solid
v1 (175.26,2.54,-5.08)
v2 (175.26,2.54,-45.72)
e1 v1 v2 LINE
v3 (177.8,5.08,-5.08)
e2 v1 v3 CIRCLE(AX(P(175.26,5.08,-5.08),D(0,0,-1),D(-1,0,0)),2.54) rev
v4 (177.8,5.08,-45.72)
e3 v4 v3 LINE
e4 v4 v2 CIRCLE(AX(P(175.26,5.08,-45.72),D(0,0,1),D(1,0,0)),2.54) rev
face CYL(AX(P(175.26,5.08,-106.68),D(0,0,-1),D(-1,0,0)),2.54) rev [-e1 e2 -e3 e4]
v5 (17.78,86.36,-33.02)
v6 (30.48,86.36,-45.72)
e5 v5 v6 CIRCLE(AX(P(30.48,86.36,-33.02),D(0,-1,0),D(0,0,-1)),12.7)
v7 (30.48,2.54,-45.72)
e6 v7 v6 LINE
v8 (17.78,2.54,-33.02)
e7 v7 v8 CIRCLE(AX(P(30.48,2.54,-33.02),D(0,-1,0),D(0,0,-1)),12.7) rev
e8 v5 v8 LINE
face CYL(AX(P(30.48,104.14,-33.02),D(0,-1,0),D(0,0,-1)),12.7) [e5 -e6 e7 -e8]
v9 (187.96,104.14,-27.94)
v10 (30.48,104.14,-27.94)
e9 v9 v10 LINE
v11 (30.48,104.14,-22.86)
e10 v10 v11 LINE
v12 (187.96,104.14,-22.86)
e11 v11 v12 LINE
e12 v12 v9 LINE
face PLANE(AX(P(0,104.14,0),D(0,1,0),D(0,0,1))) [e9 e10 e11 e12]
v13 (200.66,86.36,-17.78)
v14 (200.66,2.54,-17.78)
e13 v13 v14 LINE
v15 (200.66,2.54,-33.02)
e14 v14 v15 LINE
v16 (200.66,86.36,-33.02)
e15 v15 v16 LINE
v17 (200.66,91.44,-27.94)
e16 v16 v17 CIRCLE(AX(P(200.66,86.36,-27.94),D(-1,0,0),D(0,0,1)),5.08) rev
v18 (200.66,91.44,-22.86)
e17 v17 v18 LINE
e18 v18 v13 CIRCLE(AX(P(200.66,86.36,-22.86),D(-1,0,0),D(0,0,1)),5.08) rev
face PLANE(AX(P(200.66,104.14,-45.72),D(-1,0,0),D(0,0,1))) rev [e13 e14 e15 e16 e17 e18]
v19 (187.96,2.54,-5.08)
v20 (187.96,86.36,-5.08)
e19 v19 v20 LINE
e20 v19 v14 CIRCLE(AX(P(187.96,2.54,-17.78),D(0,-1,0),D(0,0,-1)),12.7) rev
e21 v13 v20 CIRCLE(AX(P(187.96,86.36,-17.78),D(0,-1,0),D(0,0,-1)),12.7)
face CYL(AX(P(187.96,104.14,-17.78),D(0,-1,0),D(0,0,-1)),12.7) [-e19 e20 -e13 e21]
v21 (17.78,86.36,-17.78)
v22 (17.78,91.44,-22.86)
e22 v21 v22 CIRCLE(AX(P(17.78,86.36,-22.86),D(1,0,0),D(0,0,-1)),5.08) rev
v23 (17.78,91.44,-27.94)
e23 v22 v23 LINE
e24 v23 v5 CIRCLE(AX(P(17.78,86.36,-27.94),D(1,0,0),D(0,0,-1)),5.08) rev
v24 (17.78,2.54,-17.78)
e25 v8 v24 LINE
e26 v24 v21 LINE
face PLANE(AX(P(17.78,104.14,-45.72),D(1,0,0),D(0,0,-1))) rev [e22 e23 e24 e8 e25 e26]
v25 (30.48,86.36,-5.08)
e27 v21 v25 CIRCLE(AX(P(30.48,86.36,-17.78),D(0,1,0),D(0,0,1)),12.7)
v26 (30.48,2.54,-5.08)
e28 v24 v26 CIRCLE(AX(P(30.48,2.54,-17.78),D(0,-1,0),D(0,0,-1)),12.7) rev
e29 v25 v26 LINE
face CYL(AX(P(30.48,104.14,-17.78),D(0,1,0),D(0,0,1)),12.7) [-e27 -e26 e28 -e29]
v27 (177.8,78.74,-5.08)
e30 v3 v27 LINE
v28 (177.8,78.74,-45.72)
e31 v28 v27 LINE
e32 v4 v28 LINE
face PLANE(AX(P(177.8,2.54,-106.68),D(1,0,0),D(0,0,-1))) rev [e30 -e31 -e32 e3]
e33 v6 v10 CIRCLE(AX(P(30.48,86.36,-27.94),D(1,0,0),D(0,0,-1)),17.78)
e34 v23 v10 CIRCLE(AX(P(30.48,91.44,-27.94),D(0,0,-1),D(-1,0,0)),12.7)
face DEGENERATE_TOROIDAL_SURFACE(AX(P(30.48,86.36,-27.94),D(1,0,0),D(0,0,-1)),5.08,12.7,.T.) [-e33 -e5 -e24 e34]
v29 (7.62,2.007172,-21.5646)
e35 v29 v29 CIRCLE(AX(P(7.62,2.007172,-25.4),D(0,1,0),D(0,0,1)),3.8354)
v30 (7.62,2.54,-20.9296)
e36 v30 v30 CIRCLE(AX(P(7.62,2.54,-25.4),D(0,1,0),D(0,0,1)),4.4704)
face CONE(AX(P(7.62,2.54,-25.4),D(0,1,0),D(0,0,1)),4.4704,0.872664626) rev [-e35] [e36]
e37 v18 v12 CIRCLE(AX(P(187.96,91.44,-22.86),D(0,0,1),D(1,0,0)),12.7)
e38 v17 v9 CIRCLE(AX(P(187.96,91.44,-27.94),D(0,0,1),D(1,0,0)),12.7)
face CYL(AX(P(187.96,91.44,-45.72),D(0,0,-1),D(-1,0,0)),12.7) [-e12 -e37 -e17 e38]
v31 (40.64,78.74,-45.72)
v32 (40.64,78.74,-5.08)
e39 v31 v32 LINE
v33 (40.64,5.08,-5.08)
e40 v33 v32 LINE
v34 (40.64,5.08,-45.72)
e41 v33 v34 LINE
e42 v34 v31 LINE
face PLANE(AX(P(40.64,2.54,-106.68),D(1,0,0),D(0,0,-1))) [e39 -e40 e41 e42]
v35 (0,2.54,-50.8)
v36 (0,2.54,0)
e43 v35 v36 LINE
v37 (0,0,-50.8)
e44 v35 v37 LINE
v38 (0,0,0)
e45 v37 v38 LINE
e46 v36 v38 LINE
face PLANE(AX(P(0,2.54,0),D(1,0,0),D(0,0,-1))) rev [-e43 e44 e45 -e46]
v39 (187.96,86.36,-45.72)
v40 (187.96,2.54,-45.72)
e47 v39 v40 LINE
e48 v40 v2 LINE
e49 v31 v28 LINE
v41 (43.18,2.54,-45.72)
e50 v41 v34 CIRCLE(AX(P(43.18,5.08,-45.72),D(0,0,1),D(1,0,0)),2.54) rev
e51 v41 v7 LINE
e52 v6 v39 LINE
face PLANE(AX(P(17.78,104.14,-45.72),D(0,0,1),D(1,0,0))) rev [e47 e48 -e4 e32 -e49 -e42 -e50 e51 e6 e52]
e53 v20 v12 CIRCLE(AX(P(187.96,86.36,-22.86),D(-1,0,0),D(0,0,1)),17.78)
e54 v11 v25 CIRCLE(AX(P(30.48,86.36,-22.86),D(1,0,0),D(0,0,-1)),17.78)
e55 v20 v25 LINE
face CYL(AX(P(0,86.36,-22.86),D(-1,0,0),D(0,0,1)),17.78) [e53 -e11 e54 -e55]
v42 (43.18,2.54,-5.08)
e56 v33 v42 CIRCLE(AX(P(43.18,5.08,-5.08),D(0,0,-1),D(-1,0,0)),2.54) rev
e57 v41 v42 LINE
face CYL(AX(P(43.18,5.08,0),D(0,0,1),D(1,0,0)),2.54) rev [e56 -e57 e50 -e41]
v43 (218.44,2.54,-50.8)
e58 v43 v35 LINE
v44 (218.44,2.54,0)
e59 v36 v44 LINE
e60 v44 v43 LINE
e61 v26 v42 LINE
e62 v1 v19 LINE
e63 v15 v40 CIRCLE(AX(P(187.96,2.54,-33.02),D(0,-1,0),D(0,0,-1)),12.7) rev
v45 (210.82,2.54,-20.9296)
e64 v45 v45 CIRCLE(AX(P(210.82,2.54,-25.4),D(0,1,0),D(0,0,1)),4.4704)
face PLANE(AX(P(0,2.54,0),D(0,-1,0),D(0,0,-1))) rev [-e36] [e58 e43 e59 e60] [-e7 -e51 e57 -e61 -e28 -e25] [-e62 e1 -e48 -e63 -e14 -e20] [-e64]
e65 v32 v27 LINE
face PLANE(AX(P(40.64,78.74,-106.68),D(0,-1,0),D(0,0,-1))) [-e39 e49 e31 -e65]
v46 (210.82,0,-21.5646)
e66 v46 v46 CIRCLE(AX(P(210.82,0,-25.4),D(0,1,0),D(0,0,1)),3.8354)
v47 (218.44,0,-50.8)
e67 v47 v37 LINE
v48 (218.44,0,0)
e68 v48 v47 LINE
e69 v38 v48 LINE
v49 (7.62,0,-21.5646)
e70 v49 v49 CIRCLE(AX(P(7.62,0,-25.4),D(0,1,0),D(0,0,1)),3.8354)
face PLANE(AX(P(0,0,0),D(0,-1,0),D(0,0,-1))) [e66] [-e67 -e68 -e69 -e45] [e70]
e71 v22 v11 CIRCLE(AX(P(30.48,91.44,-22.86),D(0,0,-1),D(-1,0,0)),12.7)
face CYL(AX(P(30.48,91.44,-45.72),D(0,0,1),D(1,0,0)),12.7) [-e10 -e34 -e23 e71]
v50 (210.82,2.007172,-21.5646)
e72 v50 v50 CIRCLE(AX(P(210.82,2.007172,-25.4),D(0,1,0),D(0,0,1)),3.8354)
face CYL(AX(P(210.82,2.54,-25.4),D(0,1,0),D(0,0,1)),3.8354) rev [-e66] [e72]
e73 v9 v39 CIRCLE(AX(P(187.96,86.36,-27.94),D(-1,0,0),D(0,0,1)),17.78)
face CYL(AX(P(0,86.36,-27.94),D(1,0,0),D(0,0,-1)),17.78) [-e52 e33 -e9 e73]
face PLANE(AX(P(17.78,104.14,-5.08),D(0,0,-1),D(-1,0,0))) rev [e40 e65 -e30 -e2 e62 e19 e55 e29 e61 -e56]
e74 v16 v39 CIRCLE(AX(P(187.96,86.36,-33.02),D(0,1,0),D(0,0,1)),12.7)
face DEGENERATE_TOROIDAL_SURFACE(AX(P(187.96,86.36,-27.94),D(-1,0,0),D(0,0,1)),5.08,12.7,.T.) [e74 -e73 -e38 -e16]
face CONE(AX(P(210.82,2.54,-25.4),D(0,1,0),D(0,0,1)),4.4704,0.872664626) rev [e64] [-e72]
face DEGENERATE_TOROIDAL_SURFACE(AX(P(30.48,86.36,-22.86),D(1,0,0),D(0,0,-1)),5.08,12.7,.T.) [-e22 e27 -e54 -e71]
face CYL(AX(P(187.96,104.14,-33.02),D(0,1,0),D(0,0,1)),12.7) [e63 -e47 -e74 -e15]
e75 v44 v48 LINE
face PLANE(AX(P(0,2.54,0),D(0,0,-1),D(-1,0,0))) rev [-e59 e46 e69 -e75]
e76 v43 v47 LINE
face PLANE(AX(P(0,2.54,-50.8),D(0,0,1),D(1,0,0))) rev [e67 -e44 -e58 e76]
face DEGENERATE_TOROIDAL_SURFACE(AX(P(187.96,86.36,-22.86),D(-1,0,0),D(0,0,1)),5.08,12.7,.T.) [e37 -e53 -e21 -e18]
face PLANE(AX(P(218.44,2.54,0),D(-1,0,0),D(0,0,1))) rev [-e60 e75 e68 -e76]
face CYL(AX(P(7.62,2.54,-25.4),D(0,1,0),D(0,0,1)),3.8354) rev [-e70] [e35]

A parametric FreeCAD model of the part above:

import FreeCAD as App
import Part
import Sketcher
Q = App.Units.Quantity


def edges_at(feature, points):
    """Names of the edges that pass closest to the given points."""
    edges = feature.Shape.Edges
    near = lambda p: min(range(len(edges)), key=lambda i: edges[i].distToShape(Part.Vertex(*p))[0])
    return sorted({f"Edge{near(p) + 1}" for p in points})

doc = App.newDocument("Part")
body = doc.addObject("PartDesign::Body", "Body")

# Sketch on XZ plane
sketch1 = body.newObject("Sketcher::SketchObject", "Sketch")
sketch1.AttachmentSupport = (doc.getObject("XZ_Plane"), [""])
sketch1.MapMode = "FlatFace"
sketch1.addGeometry([
    Part.LineSegment(App.Vector(0, -50.8, 0), App.Vector(0, 0, 0)),  # 0
    Part.LineSegment(App.Vector(0, 0, 0), App.Vector(218.44, 0, 0)),  # 1
    Part.LineSegment(App.Vector(218.44, 0, 0), App.Vector(218.44, -50.8, 0)),  # 2
    Part.LineSegment(App.Vector(218.44, -50.8, 0), App.Vector(0, -50.8, 0)),  # 3
    Part.Circle(App.Vector(7.62, -25.4, 0), App.Vector(0, 0, 1), 3.81),  # 4
    Part.Circle(App.Vector(210.82, -25.4, 0), App.Vector(0, 0, 1), 3.81),  # 5
], False)
sketch1.addConstraint([
    Sketcher.Constraint("Coincident", 0, 2, 1, 1),
    Sketcher.Constraint("Coincident", 1, 2, 2, 1),
    Sketcher.Constraint("Coincident", 2, 2, 3, 1),
    Sketcher.Constraint("Coincident", 3, 2, 0, 1),
    Sketcher.Constraint("Vertical", 0),
    Sketcher.Constraint("Horizontal", 1),
    Sketcher.Constraint("Vertical", 2),
    Sketcher.Constraint("Horizontal", 3),
    Sketcher.Constraint("Coincident", 0, 2, -1, 1),
    Sketcher.Constraint("Equal", 4, 5),
    Sketcher.Constraint("Horizontal", 4, 3, 5, 3),
    Sketcher.Constraint("Diameter", 4, Q("0.3 in")),
    Sketcher.Constraint("DistanceY", 0, 1, 0, 2, Q("2 in")),
    Sketcher.Constraint("DistanceX", 1, 1, 1, 2, Q("8.6 in")),
    Sketcher.Constraint("DistanceY", 4, 3, -1, 1, Q("1 in")),
    Sketcher.Constraint("DistanceX", 4, 3, 5, 3, Q("8 in")),
    Sketcher.Constraint("DistanceX", -1, 1, 4, 3, Q("0.3 in")),
])
pad1 = body.newObject("PartDesign::Pad", "Pad")
pad1.Profile = sketch1
pad1.Length = Q("0.1 in")
pad1.Reversed = True

# Sketch on XZ plane
sketch2 = body.newObject("Sketcher::SketchObject", "Sketch001")
sketch2.AttachmentSupport = (doc.getObject("XZ_Plane"), [""])
sketch2.MapMode = "FlatFace"
sketch2.AttachmentOffset = App.Placement(App.Vector(0, 0, -0.1 * 25.4), App.Rotation())
sketch2.addGeometry([
    Part.LineSegment(App.Vector(17.78, -45.72, 0), App.Vector(17.78, -5.08, 0)),
    Part.LineSegment(App.Vector(17.78, -5.08, 0), App.Vector(200.66, -5.08, 0)),
    Part.LineSegment(App.Vector(200.66, -5.08, 0), App.Vector(200.66, -45.72, 0)),
    Part.LineSegment(App.Vector(200.66, -45.72, 0), App.Vector(17.78, -45.72, 0)),
], False)
sketch2.addConstraint([
    Sketcher.Constraint("Coincident", 0, 2, 1, 1),
    Sketcher.Constraint("Coincident", 1, 2, 2, 1),
    Sketcher.Constraint("Coincident", 2, 2, 3, 1),
    Sketcher.Constraint("Coincident", 3, 2, 0, 1),
    Sketcher.Constraint("Vertical", 0),
    Sketcher.Constraint("Horizontal", 1),
    Sketcher.Constraint("Vertical", 2),
    Sketcher.Constraint("Horizontal", 3),
    Sketcher.Constraint("DistanceX", 1, 1, 1, 2, Q("7.2 in")),
    Sketcher.Constraint("DistanceY", 0, 1, 0, 2, Q("1.6 in")),
    Sketcher.Constraint("DistanceX", -1, 1, 0, 2, Q("0.7 in")),
    Sketcher.Constraint("DistanceY", 0, 2, -1, 1, Q("0.2 in")),
])
pad2 = body.newObject("PartDesign::Pad", "Pad001")
pad2.Profile = sketch2
pad2.Length = Q("4 in")
pad2.Reversed = True

# Sketch on XY plane
sketch3 = body.newObject("Sketcher::SketchObject", "Sketch002")
sketch3.AttachmentSupport = (doc.getObject("XY_Plane"), [""])
sketch3.MapMode = "FlatFace"
sketch3.AttachmentOffset = App.Placement(App.Vector(0, 0, -0.2 * 25.4), App.Rotation())
sketch3.addGeometry([
    Part.LineSegment(App.Vector(40.64, 78.74, 0), App.Vector(40.64, 2.54, 0)),
    Part.LineSegment(App.Vector(40.64, 2.54, 0), App.Vector(177.8, 2.54, 0)),
    Part.LineSegment(App.Vector(177.8, 2.54, 0), App.Vector(177.8, 78.74, 0)),
    Part.LineSegment(App.Vector(177.8, 78.74, 0), App.Vector(40.64, 78.74, 0)),
], False)
sketch3.addConstraint([
    Sketcher.Constraint("Coincident", 0, 2, 1, 1),
    Sketcher.Constraint("Coincident", 1, 2, 2, 1),
    Sketcher.Constraint("Coincident", 2, 2, 3, 1),
    Sketcher.Constraint("Coincident", 3, 2, 0, 1),
    Sketcher.Constraint("Vertical", 0),
    Sketcher.Constraint("Horizontal", 1),
    Sketcher.Constraint("Vertical", 2),
    Sketcher.Constraint("Horizontal", 3),
    Sketcher.Constraint("DistanceY", 0, 2, 0, 1, Q("3 in")),
    Sketcher.Constraint("DistanceX", 1, 1, 1, 2, Q("5.4 in")),
    Sketcher.Constraint("DistanceX", -1, 1, 1, 2, Q("7 in")),
    Sketcher.Constraint("DistanceY", -1, 1, 0, 2, Q("0.1 in")),
])
pocket1 = body.newObject("PartDesign::Pocket", "Pocket")
pocket1.Profile = sketch3
pocket1.Length = Q("4 in")
doc.recompute()

fillet = body.newObject("PartDesign::Fillet", "Fillet")
fillet.Base = (pocket1, edges_at(pocket1, [(109.22, 104.14, -5.08)]))
fillet.Radius = Q("0.7 in")
doc.recompute()

fillet2 = body.newObject("PartDesign::Fillet", "Fillet001")
fillet2.Base = (fillet, edges_at(fillet, [(109.22, 104.14, -45.72)]))
fillet2.Radius = Q("0.7 in")
doc.recompute()

fillet3 = body.newObject("PartDesign::Fillet", "Fillet002")
fillet3.Base = (fillet2, edges_at(fillet2, [
    (17.78, 44.45, -5.08),
    (17.78, 98.932, -10.288),
    (17.78, 104.14, -25.4),
    (17.78, 44.45, -45.72),
    (17.78, 98.932, -40.512),
]))
fillet3.Radius = Q("0.5 in")
doc.recompute()

fillet4 = body.newObject("PartDesign::Fillet", "Fillet003")
fillet4.Base = (fillet3, edges_at(fillet3, [
    (200.66, 104.14, -25.4),
    (200.66, 44.45, -5.08),
    (200.66, 98.932, -10.288),
    (200.66, 44.45, -45.72),
    (200.66, 98.932, -40.512),
]))
fillet4.Radius = Q("0.5 in")
doc.recompute()

fillet5 = body.newObject("PartDesign::Fillet", "Fillet004")
fillet5.Base = (fillet4, edges_at(fillet4, [(40.64, 2.54, -25.4)]))
fillet5.Radius = Q("0.1 in")
doc.recompute()

fillet6 = body.newObject("PartDesign::Fillet", "Fillet005")
fillet6.Base = (fillet5, edges_at(fillet5, [(177.8, 2.54, -25.4)]))
fillet6.Radius = Q("0.1 in")

# Sketch on YZ plane
sketch4 = body.newObject("Sketcher::SketchObject", "Sketch003")
sketch4.AttachmentSupport = (doc.getObject("YZ_Plane"), [""])
sketch4.MapMode = "FlatFace"
sketch4.AttachmentOffset = App.Placement(App.Vector(0, 0, 8.3 * 25.4), App.Rotation())
sketch4.addGeometry([
    Part.LineSegment(App.Vector(0, -25.4, 0), App.Vector(2.54, -25.4, 0)),  # 0
    Part.LineSegment(App.Vector(2.54, -25.4, 0), App.Vector(2.54, -20.9296, 0)),  # 1
    Part.LineSegment(App.Vector(2.54, -20.9296, 0), App.Vector(2.007172, -21.5646, 0)),  # 2
    Part.LineSegment(App.Vector(2.007172, -21.5646, 0), App.Vector(0, -21.5646, 0)),  # 3
    Part.LineSegment(App.Vector(0, -21.5646, 0), App.Vector(0, -25.4, 0)),  # 4
], False)
sketch4.addGeometry(Part.LineSegment(App.Vector(2.54, -25.4, 0), App.Vector(0, -25.4, 0)), True)  # axis
sketch4.addConstraint([
    Sketcher.Constraint("Coincident", 0, 2, 1, 1),
    Sketcher.Constraint("Coincident", 1, 2, 2, 1),
    Sketcher.Constraint("Coincident", 2, 2, 3, 1),
    Sketcher.Constraint("Coincident", 3, 2, 4, 1),
    Sketcher.Constraint("Coincident", 4, 2, 0, 1),
    Sketcher.Constraint("Horizontal", 0),
    Sketcher.Constraint("Vertical", 1),
    Sketcher.Constraint("Horizontal", 3),
    Sketcher.Constraint("Vertical", 4),
    Sketcher.Constraint("Horizontal", 5),
    Sketcher.Constraint("Coincident", 5, 1, 0, 2),
    Sketcher.Constraint("PointOnObject", 3, 2, -2),
    Sketcher.Constraint("PointOnObject", 5, 2, -2),
    Sketcher.Constraint("DistanceX", 0, 1, 0, 2, Q("0.1 in")),
    Sketcher.Constraint("DistanceY", 0, 2, -1, 1, Q("1 in")),
    Sketcher.Constraint("Angle", 2, Q("-130 deg")),
    Sketcher.Constraint("DistanceY", 1, 1, 1, 2, Q("0.176 in")),
    Sketcher.Constraint("DistanceY", 4, 2, 4, 1, Q("0.151 in")),
])
groove = body.newObject("PartDesign::Groove", "Groove")
groove.Profile = sketch4
groove.ReferenceAxis = (sketch4, ["Axis0"])
groove.Angle = 360
doc.recompute()

linearpattern = body.newObject("PartDesign::LinearPattern", "LinearPattern")
linearpattern.Originals = [groove]
linearpattern.Direction = (doc.getObject("X_Axis"), [""])
linearpattern.Mode = "offset"
linearpattern.Offset = Q("8 in")
linearpattern.Occurrences = 2
linearpattern.Reversed = True
body.Tip = linearpattern

doc.recompute()
